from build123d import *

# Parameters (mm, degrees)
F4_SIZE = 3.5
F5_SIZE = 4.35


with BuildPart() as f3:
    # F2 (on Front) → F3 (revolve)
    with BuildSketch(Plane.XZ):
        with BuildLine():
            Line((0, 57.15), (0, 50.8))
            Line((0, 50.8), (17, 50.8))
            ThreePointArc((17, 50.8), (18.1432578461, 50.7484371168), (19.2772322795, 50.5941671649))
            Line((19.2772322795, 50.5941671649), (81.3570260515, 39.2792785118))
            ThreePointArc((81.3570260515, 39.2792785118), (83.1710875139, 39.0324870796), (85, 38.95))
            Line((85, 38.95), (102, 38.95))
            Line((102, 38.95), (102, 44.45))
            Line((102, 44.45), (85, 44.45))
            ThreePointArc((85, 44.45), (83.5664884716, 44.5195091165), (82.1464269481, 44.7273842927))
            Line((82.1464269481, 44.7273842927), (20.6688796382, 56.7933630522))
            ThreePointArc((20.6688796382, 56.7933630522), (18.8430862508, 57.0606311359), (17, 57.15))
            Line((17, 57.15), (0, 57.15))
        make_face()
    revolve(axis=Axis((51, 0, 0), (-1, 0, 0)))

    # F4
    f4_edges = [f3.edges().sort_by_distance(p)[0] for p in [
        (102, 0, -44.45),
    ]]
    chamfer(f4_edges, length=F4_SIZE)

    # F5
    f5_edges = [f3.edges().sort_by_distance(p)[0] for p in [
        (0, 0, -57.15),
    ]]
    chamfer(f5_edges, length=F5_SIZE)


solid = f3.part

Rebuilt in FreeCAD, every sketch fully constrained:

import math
import FreeCAD as App
import Part
import Sketcher

V = App.Vector
Q = App.Units.Quantity


def edges_at(feature, points):
    """Names of the edges that pass closest to the given points."""
    edges = feature.Shape.Edges
    near = lambda p: min(range(len(edges)), key=lambda i: edges[i].distToShape(Part.Vertex(*p))[0])
    return sorted({f"Edge{near(p) + 1}" for p in points})

doc = App.newDocument("Part")
body = doc.addObject("PartDesign::Body", "Body")

# Sketch on XZ plane
sketch1 = body.newObject("Sketcher::SketchObject", "Sketch")
sketch1.AttachmentSupport = (doc.getObject("XZ_Plane"), [""])
sketch1.MapMode = "FlatFace"
sketch1.addGeometry(Part.LineSegment(V(0, 57.1, 0), V(0, 50.8, 0)), False)
sketch1.addGeometry(Part.LineSegment(V(0, 50.8, 0), V(17, 50.8, 0)), False)
sketch1.addGeometry(Part.ArcOfCircle(Part.Circle(V(17, 38.1, 0), V(0, 0, 1), 12.7), math.radians(79.67), math.radians(90)), False)
sketch1.addGeometry(Part.LineSegment(V(19.3, 50.6, 0), V(81.4, 39.3, 0)), False)
sketch1.addGeometry(Part.ArcOfCircle(Part.Circle(V(85, 59.3, 0), V(0, 0, 1), 20.3), math.radians(-100.33), math.radians(-90)), False)
sketch1.addGeometry(Part.LineSegment(V(85, 39, 0), V(102, 39, 0)), False)
sketch1.addGeometry(Part.LineSegment(V(102, 39, 0), V(102, 44.5, 0)), False)
sketch1.addGeometry(Part.LineSegment(V(102, 44.5, 0), V(85, 44.5, 0)), False)
sketch1.addGeometry(Part.ArcOfCircle(Part.Circle(V(85, 59.3, 0), V(0, 0, 1), 14.8), math.radians(-101.1), math.radians(-90)), False)
sketch1.addGeometry(Part.LineSegment(V(82.1, 44.7, 0), V(20.7, 56.8, 0)), False)
sketch1.addGeometry(Part.ArcOfCircle(Part.Circle(V(17, 38.1, 0), V(0, 0, 1), 19.1), math.radians(78.9), math.radians(90)), False)
sketch1.addGeometry(Part.LineSegment(V(17, 57.1, 0), V(0, 57.1, 0)), False)
sketch1.addConstraint(Sketcher.Constraint("Coincident", 0, 2, 1, 1))
sketch1.addConstraint(Sketcher.Constraint("Tangent", 1, 2, 2, 2))
sketch1.addConstraint(Sketcher.Constraint("Tangent", 2, 1, 3, 1))
sketch1.addConstraint(Sketcher.Constraint("Tangent", 3, 2, 4, 1))
sketch1.addConstraint(Sketcher.Constraint("Tangent", 4, 2, 5, 1))
sketch1.addConstraint(Sketcher.Constraint("Coincident", 5, 2, 6, 1))
sketch1.addConstraint(Sketcher.Constraint("Coincident", 6, 2, 7, 1))
sketch1.addConstraint(Sketcher.Constraint("Tangent", 7, 2, 8, 2))
sketch1.addConstraint(Sketcher.Constraint("Tangent", 8, 1, 9, 1))
sketch1.addConstraint(Sketcher.Constraint("Tangent", 9, 2, 10, 1))
sketch1.addConstraint(Sketcher.Constraint("Tangent", 10, 2, 11, 1))
sketch1.addConstraint(Sketcher.Constraint("Coincident", 11, 2, 0, 1))
sketch1.addConstraint(Sketcher.Constraint("Vertical", 0))
sketch1.addConstraint(Sketcher.Constraint("Horizontal", 1))
sketch1.addConstraint(Sketcher.Constraint("Horizontal", 5))
sketch1.addConstraint(Sketcher.Constraint("Vertical", 6))
sketch1.addConstraint(Sketcher.Constraint("Horizontal", 7))
sketch1.addConstraint(Sketcher.Constraint("Horizontal", 11))
sketch1.addConstraint(Sketcher.Constraint("Coincident", 8, 3, 4, 3))
sketch1.addConstraint(Sketcher.Constraint("Coincident", 10, 3, 2, 3))
sketch1.addConstraint(Sketcher.Constraint("PointOnObject", 0, 2, -2))
sketch1.addConstraint(Sketcher.Constraint("Equal", 1, 5))
sketch1.addConstraint(Sketcher.Constraint("Radius", 2, Q("12.7 mm")))
sketch1.addConstraint(Sketcher.Constraint("DistanceX", 1, 1, 1, 2, Q("17 mm")))
sketch1.addConstraint(Sketcher.Constraint("Radius", 10, Q("19.05 mm")))
sketch1.addConstraint(Sketcher.Constraint("DistanceY", 6, 1, 6, 2, Q("5.5 mm")))
sketch1.addConstraint(Sketcher.Constraint("DistanceX", -1, 1, 4, 3, Q("85 mm")))
sketch1.addConstraint(Sketcher.Constraint("DistanceY", -1, 1, 2, 3, Q("38.1 mm")))
sketch1.addConstraint(Sketcher.Constraint("DistanceY", -1, 1, 4, 2, Q("38.95 mm")))
sketch1.addConstraint(Sketcher.Constraint("Radius", 4, Q("20.316667 mm")))
revolution = body.newObject("PartDesign::Revolution", "Revolution")
revolution.Profile = sketch1
revolution.ReferenceAxis = (sketch1, ["H_Axis"])
revolution.Angle = 360
doc.recompute()

chamfer = body.newObject("PartDesign::Chamfer", "Chamfer")
chamfer.Base = (revolution, edges_at(revolution, [(102, 0, -44.45)]))
chamfer.Size = 3.5
doc.recompute()

chamfer2 = body.newObject("PartDesign::Chamfer", "Chamfer001")
chamfer2.Base = (chamfer, edges_at(chamfer, [(0, 0, -57.15)]))
chamfer2.Size = 4.35

doc.recompute()
